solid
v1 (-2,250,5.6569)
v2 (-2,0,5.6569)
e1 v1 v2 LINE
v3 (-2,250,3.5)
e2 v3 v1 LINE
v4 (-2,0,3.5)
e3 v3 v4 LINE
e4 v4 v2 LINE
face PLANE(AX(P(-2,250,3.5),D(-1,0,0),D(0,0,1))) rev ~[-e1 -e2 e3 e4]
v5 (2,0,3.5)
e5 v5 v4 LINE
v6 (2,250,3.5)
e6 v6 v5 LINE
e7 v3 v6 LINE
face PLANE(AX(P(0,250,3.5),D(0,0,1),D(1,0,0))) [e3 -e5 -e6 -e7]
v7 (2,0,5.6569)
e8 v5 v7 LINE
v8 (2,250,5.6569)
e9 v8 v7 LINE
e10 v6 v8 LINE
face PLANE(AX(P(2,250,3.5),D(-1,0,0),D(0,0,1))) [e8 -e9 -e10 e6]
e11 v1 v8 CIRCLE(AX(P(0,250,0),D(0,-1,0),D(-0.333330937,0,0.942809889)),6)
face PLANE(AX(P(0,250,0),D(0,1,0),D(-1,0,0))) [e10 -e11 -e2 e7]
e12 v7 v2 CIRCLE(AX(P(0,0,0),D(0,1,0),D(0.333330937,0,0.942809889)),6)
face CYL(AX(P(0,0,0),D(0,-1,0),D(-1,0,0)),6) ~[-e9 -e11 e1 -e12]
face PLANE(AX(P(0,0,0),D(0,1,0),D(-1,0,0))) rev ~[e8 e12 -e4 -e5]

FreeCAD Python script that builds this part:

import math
import FreeCAD as App
import Part
import Sketcher
Q = App.Units.Quantity

doc = App.newDocument("Part")
body = doc.addObject("PartDesign::Body", "Body")

# Sketch on XZ plane
sketch1 = body.newObject("Sketcher::SketchObject", "Sketch")
sketch1.AttachmentSupport = (doc.getObject("XZ_Plane"), [""])
sketch1.MapMode = "FlatFace"
sketch1.addGeometry(Part.Circle(App.Vector(0, 0, 0), App.Vector(0, 0, 1), 6), False)
sketch1.addConstraint(Sketcher.Constraint("Coincident", 0, 3, -1, 1))
sketch1.addConstraint(Sketcher.Constraint("Diameter", 0, Q("12 mm")))
pad1 = body.newObject("PartDesign::Pad", "Pad")
pad1.Profile = sketch1
pad1.Length = 250
pad1.Reversed = True

# Sketch on XZ plane
sketch2 = body.newObject("Sketcher::SketchObject", "Sketch001")
sketch2.AttachmentSupport = (doc.getObject("XZ_Plane"), [""])
sketch2.MapMode = "FlatFace"
sketch2.AttachmentOffset = App.Placement(App.Vector(0, 0, -250), App.Rotation())
sketch2.addGeometry(Part.LineSegment(App.Vector(-2, 3.5, 0), App.Vector(-2, 5.6569, 0)), False)
sketch2.addGeometry(Part.ArcOfCircle(Part.Circle(App.Vector(0, 0, 0), App.Vector(0, 0, 1), 6), math.radians(70.528925), math.radians(109.471075)), False)
sketch2.addGeometry(Part.LineSegment(App.Vector(2, 5.6569, 0), App.Vector(2, 3.5, 0)), False)
sketch2.addGeometry(Part.LineSegment(App.Vector(2, 3.5, 0), App.Vector(-2, 3.5, 0)), False)
sketch2.addConstraint(Sketcher.Constraint("Coincident", 0, 2, 1, 2))
sketch2.addConstraint(Sketcher.Constraint("Coincident", 1, 1, 2, 1))
sketch2.addConstraint(Sketcher.Constraint("Coincident", 2, 2, 3, 1))
sketch2.addConstraint(Sketcher.Constraint("Coincident", 3, 2, 0, 1))
sketch2.addConstraint(Sketcher.Constraint("Vertical", 0))
sketch2.addConstraint(Sketcher.Constraint("Vertical", 2))
sketch2.addConstraint(Sketcher.Constraint("Horizontal", 3))
sketch2.addConstraint(Sketcher.Constraint("Coincident", 1, 3, -1, 1))
sketch2.addConstraint(Sketcher.Constraint("Horizontal", 0, 2, 1, 1))
sketch2.addConstraint(Sketcher.Constraint("DistanceX", 0, 2, -1, 1, Q("2 mm")))
sketch2.addConstraint(Sketcher.Constraint("Radius", 1, Q("6 mm")))
sketch2.addConstraint(Sketcher.Constraint("DistanceY", -1, 1, 2, 2, Q("3.5 mm")))
pocket1 = body.newObject("PartDesign::Pocket", "Pocket")
pocket1.Profile = sketch2
pocket1.Length = 250
pocket1.Reversed = True

doc.recompute()
